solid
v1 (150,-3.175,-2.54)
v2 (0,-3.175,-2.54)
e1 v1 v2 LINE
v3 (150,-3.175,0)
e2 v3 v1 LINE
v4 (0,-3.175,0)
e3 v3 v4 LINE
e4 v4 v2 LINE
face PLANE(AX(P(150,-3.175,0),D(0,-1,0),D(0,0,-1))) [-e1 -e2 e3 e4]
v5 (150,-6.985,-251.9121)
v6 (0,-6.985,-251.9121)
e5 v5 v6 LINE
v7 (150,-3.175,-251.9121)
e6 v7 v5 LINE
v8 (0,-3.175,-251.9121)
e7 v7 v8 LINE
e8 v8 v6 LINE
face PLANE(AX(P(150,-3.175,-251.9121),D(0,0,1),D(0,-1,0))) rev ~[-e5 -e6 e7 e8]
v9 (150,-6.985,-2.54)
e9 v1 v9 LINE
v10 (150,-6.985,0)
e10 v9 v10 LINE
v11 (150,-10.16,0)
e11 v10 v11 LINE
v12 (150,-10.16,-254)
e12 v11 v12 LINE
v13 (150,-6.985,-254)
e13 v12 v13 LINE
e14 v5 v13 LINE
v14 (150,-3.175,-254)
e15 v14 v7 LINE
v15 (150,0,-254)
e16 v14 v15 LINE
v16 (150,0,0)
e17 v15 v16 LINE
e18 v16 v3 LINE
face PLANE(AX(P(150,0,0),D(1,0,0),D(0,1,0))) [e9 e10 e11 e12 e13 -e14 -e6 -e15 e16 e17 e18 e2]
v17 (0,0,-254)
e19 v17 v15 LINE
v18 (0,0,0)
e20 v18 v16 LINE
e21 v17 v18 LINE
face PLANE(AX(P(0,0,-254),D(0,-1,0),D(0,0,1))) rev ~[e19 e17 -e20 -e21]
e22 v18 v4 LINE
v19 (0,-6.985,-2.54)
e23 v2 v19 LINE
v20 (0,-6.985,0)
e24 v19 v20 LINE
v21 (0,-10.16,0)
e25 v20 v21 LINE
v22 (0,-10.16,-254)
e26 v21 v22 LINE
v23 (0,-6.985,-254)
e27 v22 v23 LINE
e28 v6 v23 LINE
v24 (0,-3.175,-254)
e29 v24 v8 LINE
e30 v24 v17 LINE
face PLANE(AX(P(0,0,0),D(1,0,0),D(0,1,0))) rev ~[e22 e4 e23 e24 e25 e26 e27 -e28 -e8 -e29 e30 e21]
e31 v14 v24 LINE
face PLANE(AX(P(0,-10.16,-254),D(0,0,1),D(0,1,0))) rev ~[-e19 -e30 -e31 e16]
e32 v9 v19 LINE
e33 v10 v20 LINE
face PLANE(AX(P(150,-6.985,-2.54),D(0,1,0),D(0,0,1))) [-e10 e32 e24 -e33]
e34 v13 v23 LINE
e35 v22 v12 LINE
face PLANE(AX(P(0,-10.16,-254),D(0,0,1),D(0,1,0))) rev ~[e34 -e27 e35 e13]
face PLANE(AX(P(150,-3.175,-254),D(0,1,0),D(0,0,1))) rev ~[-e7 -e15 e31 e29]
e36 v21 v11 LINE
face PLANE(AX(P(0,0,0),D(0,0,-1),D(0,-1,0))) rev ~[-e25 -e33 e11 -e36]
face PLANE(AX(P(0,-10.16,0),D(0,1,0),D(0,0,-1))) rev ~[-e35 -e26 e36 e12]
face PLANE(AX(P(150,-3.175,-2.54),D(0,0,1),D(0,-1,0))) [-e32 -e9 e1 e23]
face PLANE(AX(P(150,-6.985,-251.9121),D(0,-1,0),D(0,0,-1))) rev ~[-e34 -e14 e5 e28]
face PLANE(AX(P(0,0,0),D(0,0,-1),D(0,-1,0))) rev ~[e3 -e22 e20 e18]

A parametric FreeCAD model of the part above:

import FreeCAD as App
import Part
import Sketcher
Q = App.Units.Quantity

doc = App.newDocument("Part")
params = doc.addObject("Spreadsheet::Sheet", "Params")
for row, (alias, value) in enumerate([
    ("sketch1_height", "10 in"),
    ("sketch1_width", "0.4 in"),
    ("pad1_length", "5.9055118 in"),
    ("sketch2_height", "0.1 in"),
    ("sketch2_width", "0.15 in"),
    ("pocket1_length", "5.9055118 in"),
], start=1):
    params.set(f"A{row}", alias)
    params.set(f"B{row}", "=" + value)
    params.setAlias(f"B{row}", alias)

body = doc.addObject("PartDesign::Body", "Body")

sketch1 = body.newObject("Sketcher::SketchObject", "Sketch")
sketch1.AttachmentSupport = (doc.getObject("YZ_Plane"), [""])
sketch1.MapMode = "FlatFace"
sketch1.addGeometry([
    Part.LineSegment(App.Vector(0, -254, 0), App.Vector(0, 0, 0)),
    Part.LineSegment(App.Vector(0, 0, 0), App.Vector(-10, 0, 0)),
    Part.LineSegment(App.Vector(-10, 0, 0), App.Vector(-10, -254, 0)),
    Part.LineSegment(App.Vector(-10, -254, 0), App.Vector(0, -254, 0)),
], False)
sketch1.addConstraint([
    Sketcher.Constraint("Coincident", 0, 2, 1, 1),
    Sketcher.Constraint("Coincident", 1, 2, 2, 1),
    Sketcher.Constraint("Coincident", 2, 2, 3, 1),
    Sketcher.Constraint("Coincident", 3, 2, 0, 1),
    Sketcher.Constraint("Vertical", 0),
    Sketcher.Constraint("Horizontal", 1),
    Sketcher.Constraint("Vertical", 2),
    Sketcher.Constraint("Horizontal", 3),
    Sketcher.Constraint("Coincident", 0, 2, -1, 1),
    Sketcher.Constraint("DistanceY", 0, 1, 0, 2, Q("10 in")),
    Sketcher.Constraint("DistanceX", 1, 2, 1, 1, Q("0.4 in")),
])
sketch1.setExpression("Constraints[9]", "Params.sketch1_height")
sketch1.setExpression("Constraints[10]", "Params.sketch1_width")
pad1 = body.newObject("PartDesign::Pad", "Pad")
pad1.Profile = sketch1
pad1.setExpression("Length", "Params.pad1_length")

sketch2 = body.newObject("Sketcher::SketchObject", "Sketch001")
sketch2.AttachmentSupport = (doc.getObject("YZ_Plane"), [""])
sketch2.MapMode = "FlatFace"
sketch2.AttachmentOffset = App.Placement(App.Vector(0, 0, 5.9055118 * 25.4), App.Rotation())
sketch2.addGeometry([
    Part.LineSegment(App.Vector(-3.2, -2.5, 0), App.Vector(-3.2, 0, 0)),
    Part.LineSegment(App.Vector(-3.2, 0, 0), App.Vector(-7, 0, 0)),
    Part.LineSegment(App.Vector(-7, 0, 0), App.Vector(-7, -2.5, 0)),
    Part.LineSegment(App.Vector(-7, -2.5, 0), App.Vector(-3.2, -2.5, 0)),
    Part.LineSegment(App.Vector(-7, -254, 0), App.Vector(-3.2, -254, 0)),
    Part.LineSegment(App.Vector(-3.2, -254, 0), App.Vector(-3.2, -251.9, 0)),
    Part.LineSegment(App.Vector(-3.2, -251.9, 0), App.Vector(-7, -251.9, 0)),
    Part.LineSegment(App.Vector(-7, -251.9, 0), App.Vector(-7, -254, 0)),
], False)
sketch2.addConstraint([
    Sketcher.Constraint("Coincident", 0, 2, 1, 1),
    Sketcher.Constraint("Coincident", 1, 2, 2, 1),
    Sketcher.Constraint("Coincident", 2, 2, 3, 1),
    Sketcher.Constraint("Coincident", 3, 2, 0, 1),
    Sketcher.Constraint("Coincident", 4, 2, 5, 1),
    Sketcher.Constraint("Coincident", 5, 2, 6, 1),
    Sketcher.Constraint("Coincident", 6, 2, 7, 1),
    Sketcher.Constraint("Coincident", 7, 2, 4, 1),
    Sketcher.Constraint("Vertical", 0),
    Sketcher.Constraint("Horizontal", 1),
    Sketcher.Constraint("Vertical", 2),
    Sketcher.Constraint("Horizontal", 3),
    Sketcher.Constraint("Horizontal", 4),
    Sketcher.Constraint("Vertical", 5),
    Sketcher.Constraint("Horizontal", 6),
    Sketcher.Constraint("Vertical", 7),
    Sketcher.Constraint("PointOnObject", 0, 2, -1),
    Sketcher.Constraint("Vertical", 3, 2, 4, 2),
    Sketcher.Constraint("Vertical", 2, 2, 6, 2),
    Sketcher.Constraint("DistanceY", 0, 1, 0, 2, Q("0.1 in")),
    Sketcher.Constraint("DistanceX", 1, 2, 1, 1, Q("0.15 in")),
    Sketcher.Constraint("DistanceY", 4, 2, 3, 2, Q("9.9 in")),
    Sketcher.Constraint("DistanceY", 5, 1, 5, 2, Q("0.0822 in")),
    Sketcher.Constraint("DistanceX", 0, 2, -1, 1, Q("0.125 in")),
])
sketch2.setExpression("Constraints[19]", "Params.sketch2_height")
sketch2.setExpression("Constraints[20]", "Params.sketch2_width")
pocket1 = body.newObject("PartDesign::Pocket", "Pocket")
pocket1.Profile = sketch2
pocket1.setExpression("Length", "Params.pocket1_length")

doc.recompute()
